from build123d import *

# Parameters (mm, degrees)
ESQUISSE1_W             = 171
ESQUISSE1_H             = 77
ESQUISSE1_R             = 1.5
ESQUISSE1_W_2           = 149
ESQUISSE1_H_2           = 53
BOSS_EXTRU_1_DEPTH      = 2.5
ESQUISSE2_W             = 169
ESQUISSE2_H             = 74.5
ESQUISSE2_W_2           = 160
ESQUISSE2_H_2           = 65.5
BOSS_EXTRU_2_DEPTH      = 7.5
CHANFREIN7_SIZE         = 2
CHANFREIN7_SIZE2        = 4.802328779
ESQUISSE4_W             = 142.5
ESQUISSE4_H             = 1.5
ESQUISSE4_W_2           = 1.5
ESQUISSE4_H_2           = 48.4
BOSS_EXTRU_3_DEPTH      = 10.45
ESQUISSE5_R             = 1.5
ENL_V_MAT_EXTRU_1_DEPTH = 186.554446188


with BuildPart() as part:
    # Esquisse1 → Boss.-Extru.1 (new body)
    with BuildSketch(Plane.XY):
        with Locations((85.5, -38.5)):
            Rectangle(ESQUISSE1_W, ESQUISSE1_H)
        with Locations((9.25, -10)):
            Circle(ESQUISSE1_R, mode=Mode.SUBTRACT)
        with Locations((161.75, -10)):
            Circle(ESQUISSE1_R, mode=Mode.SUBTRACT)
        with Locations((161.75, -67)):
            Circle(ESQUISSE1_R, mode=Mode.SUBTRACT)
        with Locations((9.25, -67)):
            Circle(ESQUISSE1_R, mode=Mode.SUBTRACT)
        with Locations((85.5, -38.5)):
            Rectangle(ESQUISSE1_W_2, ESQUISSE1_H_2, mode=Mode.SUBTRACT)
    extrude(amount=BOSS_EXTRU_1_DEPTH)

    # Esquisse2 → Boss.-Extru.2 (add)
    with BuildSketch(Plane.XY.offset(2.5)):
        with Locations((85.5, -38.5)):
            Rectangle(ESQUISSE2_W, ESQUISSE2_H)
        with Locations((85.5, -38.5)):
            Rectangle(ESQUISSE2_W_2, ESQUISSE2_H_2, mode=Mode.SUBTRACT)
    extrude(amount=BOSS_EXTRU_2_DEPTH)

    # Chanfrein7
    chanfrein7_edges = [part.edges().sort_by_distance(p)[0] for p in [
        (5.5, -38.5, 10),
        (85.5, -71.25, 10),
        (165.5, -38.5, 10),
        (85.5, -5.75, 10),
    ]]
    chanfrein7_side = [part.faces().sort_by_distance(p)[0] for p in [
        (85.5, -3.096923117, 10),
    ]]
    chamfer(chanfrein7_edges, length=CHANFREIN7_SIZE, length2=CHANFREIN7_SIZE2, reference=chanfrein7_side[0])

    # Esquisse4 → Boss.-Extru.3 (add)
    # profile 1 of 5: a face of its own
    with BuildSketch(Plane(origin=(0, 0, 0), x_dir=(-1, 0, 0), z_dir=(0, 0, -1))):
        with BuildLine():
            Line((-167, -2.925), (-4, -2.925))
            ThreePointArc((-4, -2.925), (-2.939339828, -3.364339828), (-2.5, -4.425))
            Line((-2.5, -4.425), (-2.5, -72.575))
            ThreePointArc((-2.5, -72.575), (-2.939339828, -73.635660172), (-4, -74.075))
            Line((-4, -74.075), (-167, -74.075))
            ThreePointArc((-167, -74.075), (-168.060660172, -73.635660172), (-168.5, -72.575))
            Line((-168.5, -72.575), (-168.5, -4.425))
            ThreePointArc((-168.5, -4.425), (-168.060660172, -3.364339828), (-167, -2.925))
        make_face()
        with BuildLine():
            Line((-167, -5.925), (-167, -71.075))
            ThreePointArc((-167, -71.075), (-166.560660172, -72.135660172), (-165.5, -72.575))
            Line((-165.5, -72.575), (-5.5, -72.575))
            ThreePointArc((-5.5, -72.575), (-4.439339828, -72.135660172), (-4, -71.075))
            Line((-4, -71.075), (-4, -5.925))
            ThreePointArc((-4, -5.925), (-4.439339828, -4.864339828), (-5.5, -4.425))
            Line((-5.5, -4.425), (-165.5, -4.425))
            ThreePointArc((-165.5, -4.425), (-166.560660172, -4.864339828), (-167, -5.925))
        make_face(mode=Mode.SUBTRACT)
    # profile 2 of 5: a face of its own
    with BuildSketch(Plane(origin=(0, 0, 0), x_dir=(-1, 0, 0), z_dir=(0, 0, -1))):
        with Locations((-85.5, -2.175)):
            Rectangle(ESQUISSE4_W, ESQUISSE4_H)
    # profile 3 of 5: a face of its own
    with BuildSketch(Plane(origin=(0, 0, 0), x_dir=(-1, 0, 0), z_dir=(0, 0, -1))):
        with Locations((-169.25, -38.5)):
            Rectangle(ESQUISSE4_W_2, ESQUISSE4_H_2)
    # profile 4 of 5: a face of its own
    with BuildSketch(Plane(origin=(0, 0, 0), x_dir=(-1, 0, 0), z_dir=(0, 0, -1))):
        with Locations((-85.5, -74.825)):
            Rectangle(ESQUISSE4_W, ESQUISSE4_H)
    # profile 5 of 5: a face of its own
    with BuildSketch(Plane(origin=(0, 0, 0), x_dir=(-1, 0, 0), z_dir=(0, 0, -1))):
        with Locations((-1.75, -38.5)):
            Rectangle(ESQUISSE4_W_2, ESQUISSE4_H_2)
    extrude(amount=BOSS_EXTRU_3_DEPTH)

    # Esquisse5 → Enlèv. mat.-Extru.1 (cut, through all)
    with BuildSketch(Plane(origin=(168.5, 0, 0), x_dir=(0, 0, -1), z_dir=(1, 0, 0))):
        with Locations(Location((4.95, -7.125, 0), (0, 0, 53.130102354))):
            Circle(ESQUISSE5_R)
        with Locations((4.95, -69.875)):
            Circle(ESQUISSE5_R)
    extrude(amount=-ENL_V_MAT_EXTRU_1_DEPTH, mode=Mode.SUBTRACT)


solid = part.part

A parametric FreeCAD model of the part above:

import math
import FreeCAD as App
import Part
import Sketcher
Q = App.Units.Quantity


def edges_at(feature, points):
    """Names of the edges that pass closest to the given points."""
    edges = feature.Shape.Edges
    near = lambda p: min(range(len(edges)), key=lambda i: edges[i].distToShape(Part.Vertex(*p))[0])
    return sorted({f"Edge{near(p) + 1}" for p in points})

doc = App.newDocument("Part")
params = doc.addObject("Spreadsheet::Sheet", "Params")
for row, (alias, value) in enumerate([
    ("sketch1_diameter", "3 mm"),
    ("sketch1_width", "171 mm"),
    ("sketch1_width2", "149 mm"),
    ("sketch1_height", "77 mm"),
    ("sketch1_height2", "53 mm"),
    ("pad1_length", "2.5 mm"),
    ("sketch2_width", "169 mm"),
    ("sketch2_width2", "160 mm"),
    ("sketch2_height", "74.5 mm"),
    ("sketch2_height2", "65.5 mm"),
    ("pad2_length", "7.5 mm"),
    ("chamfer_size", "2 mm"),
    ("chamfer_size2", "4.802329 mm"),
    ("sketch3_radius", "1.5 mm"),
    ("sketch3_width", "160 mm"),
    ("sketch3_width2", "1.5 mm"),
    ("sketch3_width3", "142.5 mm"),
    ("sketch3_height", "48.4 mm"),
    ("pad3_length", "10.45 mm"),
    ("sketch4_diameter", "3 mm"),
], start=1):
    params.set(f"A{row}", alias)
    params.set(f"B{row}", "=" + value)
    params.setAlias(f"B{row}", alias)

body = doc.addObject("PartDesign::Body", "Body")

sketch1 = body.newObject("Sketcher::SketchObject", "Sketch")
sketch1.AttachmentSupport = (doc.getObject("XY_Plane"), [""])
sketch1.MapMode = "FlatFace"
sketch1.addGeometry([
    Part.LineSegment(App.Vector(0, 0, 0), App.Vector(0, -77, 0)),
    Part.LineSegment(App.Vector(0, -77, 0), App.Vector(171, -77, 0)),
    Part.LineSegment(App.Vector(171, -77, 0), App.Vector(171, 0, 0)),
    Part.LineSegment(App.Vector(171, 0, 0), App.Vector(0, 0, 0)),
    Part.Circle(App.Vector(9.2, -67, 0), App.Vector(0, 0, 1), 1.5),
    Part.Circle(App.Vector(161.8, -67, 0), App.Vector(0, 0, 1), 1.5),
    Part.Circle(App.Vector(9.2, -10, 0), App.Vector(0, 0, 1), 1.5),
    Part.LineSegment(App.Vector(160, -65, 0), App.Vector(11, -65, 0)),
    Part.LineSegment(App.Vector(11, -65, 0), App.Vector(11, -12, 0)),
    Part.LineSegment(App.Vector(11, -12, 0), App.Vector(160, -12, 0)),
    Part.LineSegment(App.Vector(160, -12, 0), App.Vector(160, -65, 0)),
    Part.Circle(App.Vector(161.8, -10, 0), App.Vector(0, 0, 1), 1.5),
], False)
sketch1.addConstraint([
    Sketcher.Constraint("Coincident", 0, 2, 1, 1),
    Sketcher.Constraint("Coincident", 1, 2, 2, 1),
    Sketcher.Constraint("Coincident", 2, 2, 3, 1),
    Sketcher.Constraint("Coincident", 3, 2, 0, 1),
    Sketcher.Constraint("Coincident", 7, 2, 8, 1),
    Sketcher.Constraint("Coincident", 8, 2, 9, 1),
    Sketcher.Constraint("Coincident", 9, 2, 10, 1),
    Sketcher.Constraint("Coincident", 10, 2, 7, 1),
    Sketcher.Constraint("Vertical", 0),
    Sketcher.Constraint("Horizontal", 1),
    Sketcher.Constraint("Vertical", 2),
    Sketcher.Constraint("Horizontal", 3),
    Sketcher.Constraint("Horizontal", 7),
    Sketcher.Constraint("Vertical", 8),
    Sketcher.Constraint("Horizontal", 9),
    Sketcher.Constraint("Vertical", 10),
    Sketcher.Constraint("Coincident", 3, 2, -1, 1),
    Sketcher.Constraint("Equal", 4, 5),
    Sketcher.Constraint("Equal", 5, 6),
    Sketcher.Constraint("Equal", 6, 11),
    Sketcher.Constraint("Horizontal", 4, 3, 5, 3),
    Sketcher.Constraint("Horizontal", 6, 3, 11, 3),
    Sketcher.Constraint("Vertical", 4, 3, 6, 3),
    Sketcher.Constraint("Vertical", 5, 3, 11, 3),
    Sketcher.Constraint("Diameter", 4, Q("3 mm")),
    Sketcher.Constraint("DistanceX", 1, 1, 1, 2, Q("171 mm")),
    Sketcher.Constraint("DistanceX", 7, 2, 7, 1, Q("149 mm")),
    Sketcher.Constraint("DistanceY", 0, 2, 0, 1, Q("77 mm")),
    Sketcher.Constraint("DistanceY", 8, 1, 8, 2, Q("53 mm")),
    Sketcher.Constraint("DistanceY", 4, 3, -1, 1, Q("67 mm")),
    Sketcher.Constraint("DistanceY", 6, 3, -1, 1, Q("10 mm")),
    Sketcher.Constraint("DistanceX", -1, 1, 7, 2, Q("11 mm")),
    Sketcher.Constraint("DistanceY", 7, 2, -1, 1, Q("65 mm")),
    Sketcher.Constraint("DistanceX", 4, 3, 5, 3, Q("152.5 mm")),
    Sketcher.Constraint("DistanceX", -1, 1, 4, 3, Q("9.25 mm")),
])
sketch1.setExpression("Constraints[24]", "Params.sketch1_diameter")
sketch1.setExpression("Constraints[25]", "Params.sketch1_width")
sketch1.setExpression("Constraints[26]", "Params.sketch1_width2")
sketch1.setExpression("Constraints[27]", "Params.sketch1_height")
sketch1.setExpression("Constraints[28]", "Params.sketch1_height2")
pad1 = body.newObject("PartDesign::Pad", "Pad")
pad1.Profile = sketch1
pad1.setExpression("Length", "Params.pad1_length")

sketch2 = body.newObject("Sketcher::SketchObject", "Sketch001")
sketch2.AttachmentSupport = (doc.getObject("XY_Plane"), [""])
sketch2.MapMode = "FlatFace"
sketch2.AttachmentOffset = App.Placement(App.Vector(0, 0, 2.5), App.Rotation())
sketch2.addGeometry([
    Part.LineSegment(App.Vector(1, -1, 0), App.Vector(1, -76, 0)),
    Part.LineSegment(App.Vector(1, -76, 0), App.Vector(170, -76, 0)),
    Part.LineSegment(App.Vector(170, -76, 0), App.Vector(170, -1, 0)),
    Part.LineSegment(App.Vector(170, -1, 0), App.Vector(1, -1, 0)),
    Part.LineSegment(App.Vector(166, -71, 0), App.Vector(6, -71, 0)),
    Part.LineSegment(App.Vector(6, -71, 0), App.Vector(6, -6, 0)),
    Part.LineSegment(App.Vector(6, -6, 0), App.Vector(166, -6, 0)),
    Part.LineSegment(App.Vector(166, -6, 0), App.Vector(166, -71, 0)),
], False)
sketch2.addConstraint([
    Sketcher.Constraint("Coincident", 0, 2, 1, 1),
    Sketcher.Constraint("Coincident", 1, 2, 2, 1),
    Sketcher.Constraint("Coincident", 2, 2, 3, 1),
    Sketcher.Constraint("Coincident", 3, 2, 0, 1),
    Sketcher.Constraint("Coincident", 4, 2, 5, 1),
    Sketcher.Constraint("Coincident", 5, 2, 6, 1),
    Sketcher.Constraint("Coincident", 6, 2, 7, 1),
    Sketcher.Constraint("Coincident", 7, 2, 4, 1),
    Sketcher.Constraint("Vertical", 0),
    Sketcher.Constraint("Horizontal", 1),
    Sketcher.Constraint("Vertical", 2),
    Sketcher.Constraint("Horizontal", 3),
    Sketcher.Constraint("Horizontal", 4),
    Sketcher.Constraint("Vertical", 5),
    Sketcher.Constraint("Horizontal", 6),
    Sketcher.Constraint("Vertical", 7),
    Sketcher.Constraint("DistanceX", 1, 1, 1, 2, Q("169 mm")),
    Sketcher.Constraint("DistanceX", 4, 2, 4, 1, Q("160 mm")),
    Sketcher.Constraint("DistanceY", 0, 2, 0, 1, Q("74.5 mm")),
    Sketcher.Constraint("DistanceY", 5, 1, 5, 2, Q("65.5 mm")),
    Sketcher.Constraint("DistanceX", -1, 1, 0, 2, Q("1 mm")),
    Sketcher.Constraint("DistanceY", 4, 2, 3, 2, Q("70 mm")),
    Sketcher.Constraint("DistanceX", -1, 1, 4, 2, Q("5.5 mm")),
    Sketcher.Constraint("DistanceY", 0, 2, -1, 1, Q("75.75 mm")),
])
sketch2.setExpression("Constraints[16]", "Params.sketch2_width")
sketch2.setExpression("Constraints[17]", "Params.sketch2_width2")
sketch2.setExpression("Constraints[18]", "Params.sketch2_height")
sketch2.setExpression("Constraints[19]", "Params.sketch2_height2")
pad2 = body.newObject("PartDesign::Pad", "Pad001")
pad2.Profile = sketch2
pad2.setExpression("Length", "Params.pad2_length")
doc.recompute()

chamfer = body.newObject("PartDesign::Chamfer", "Chamfer")
chamfer.Base = (pad2, edges_at(pad2, [
    (5.5, -38.5, 10),
    (85.5, -71.25, 10),
    (165.5, -38.5, 10),
    (85.5, -5.75, 10),
]))
chamfer.ChamferType = "Two distances"
chamfer.setExpression("Size", "Params.chamfer_size")
chamfer.setExpression("Size2", "Params.chamfer_size2")

sketch3 = body.newObject("Sketcher::SketchObject", "Sketch002")
sketch3.AttachmentSupport = (doc.getObject("XY_Plane"), [""])
sketch3.MapMode = "FlatFace"
sketch3.addGeometry([
    Part.LineSegment(App.Vector(156.8, -2.9, 0), App.Vector(167, -2.9, 0)),
    Part.ArcOfCircle(Part.Circle(App.Vector(167, -4.4, 0), App.Vector(0, 0, 1), 1.5), math.radians(0), math.radians(90)),
    Part.LineSegment(App.Vector(168.5, -4.4, 0), App.Vector(168.5, -14.3, 0)),
    Part.LineSegment(App.Vector(168.5, -14.3, 0), App.Vector(170, -14.3, 0)),
    Part.LineSegment(App.Vector(170, -14.3, 0), App.Vector(170, -62.7, 0)),
    Part.LineSegment(App.Vector(170, -62.7, 0), App.Vector(168.5, -62.7, 0)),
    Part.LineSegment(App.Vector(168.5, -62.7, 0), App.Vector(168.5, -72.6, 0)),
    Part.ArcOfCircle(Part.Circle(App.Vector(167, -72.6, 0), App.Vector(0, 0, 1), 1.5), math.radians(-90), math.radians(0)),
    Part.LineSegment(App.Vector(167, -74.1, 0), App.Vector(156.8, -74.1, 0)),
    Part.LineSegment(App.Vector(156.8, -74.1, 0), App.Vector(156.8, -75.6, 0)),
    Part.LineSegment(App.Vector(156.8, -75.6, 0), App.Vector(14.2, -75.6, 0)),
    Part.LineSegment(App.Vector(14.2, -75.6, 0), App.Vector(14.2, -74.1, 0)),
    Part.LineSegment(App.Vector(14.2, -74.1, 0), App.Vector(4, -74.1, 0)),
    Part.ArcOfCircle(Part.Circle(App.Vector(4, -72.6, 0), App.Vector(0, 0, 1), 1.5), math.radians(180), math.radians(270)),
    Part.LineSegment(App.Vector(2.5, -72.6, 0), App.Vector(2.5, -62.7, 0)),
    Part.LineSegment(App.Vector(2.5, -62.7, 0), App.Vector(1, -62.7, 0)),
    Part.LineSegment(App.Vector(1, -62.7, 0), App.Vector(1, -14.3, 0)),
    Part.LineSegment(App.Vector(1, -14.3, 0), App.Vector(2.5, -14.3, 0)),
    Part.LineSegment(App.Vector(2.5, -14.3, 0), App.Vector(2.5, -4.4, 0)),
    Part.ArcOfCircle(Part.Circle(App.Vector(4, -4.4, 0), App.Vector(0, 0, 1), 1.5), math.radians(90), math.radians(180)),
    Part.LineSegment(App.Vector(4, -2.9, 0), App.Vector(14.2, -2.9, 0)),
    Part.LineSegment(App.Vector(14.2, -2.9, 0), App.Vector(14.2, -1.4, 0)),
    Part.LineSegment(App.Vector(14.2, -1.4, 0), App.Vector(156.8, -1.4, 0)),
    Part.LineSegment(App.Vector(156.8, -1.4, 0), App.Vector(156.8, -2.9, 0)),
    Part.ArcOfCircle(Part.Circle(App.Vector(165.5, -5.9, 0), App.Vector(0, 0, 1), 1.5), math.radians(0), math.radians(90)),
    Part.LineSegment(App.Vector(165.5, -4.4, 0), App.Vector(5.5, -4.4, 0)),
    Part.ArcOfCircle(Part.Circle(App.Vector(5.5, -5.9, 0), App.Vector(0, 0, 1), 1.5), math.radians(90), math.radians(180)),
    Part.LineSegment(App.Vector(4, -5.9, 0), App.Vector(4, -71.1, 0)),
    Part.ArcOfCircle(Part.Circle(App.Vector(5.5, -71.1, 0), App.Vector(0, 0, 1), 1.5), math.radians(180), math.radians(270)),
    Part.LineSegment(App.Vector(5.5, -72.6, 0), App.Vector(165.5, -72.6, 0)),
    Part.ArcOfCircle(Part.Circle(App.Vector(165.5, -71.1, 0), App.Vector(0, 0, 1), 1.5), math.radians(-90), math.radians(0)),
    Part.LineSegment(App.Vector(167, -71.1, 0), App.Vector(167, -5.9, 0)),
], False)
sketch3.addConstraint([
    Sketcher.Constraint("Tangent", 0, 2, 1, 2),
    Sketcher.Constraint("Tangent", 1, 1, 2, 1),
    Sketcher.Constraint("Coincident", 2, 2, 3, 1),
    Sketcher.Constraint("Coincident", 3, 2, 4, 1),
    Sketcher.Constraint("Coincident", 4, 2, 5, 1),
    Sketcher.Constraint("Coincident", 5, 2, 6, 1),
    Sketcher.Constraint("Tangent", 6, 2, 7, 2),
    Sketcher.Constraint("Tangent", 7, 1, 8, 1),
    Sketcher.Constraint("Coincident", 8, 2, 9, 1),
    Sketcher.Constraint("Coincident", 9, 2, 10, 1),
    Sketcher.Constraint("Coincident", 10, 2, 11, 1),
    Sketcher.Constraint("Coincident", 11, 2, 12, 1),
    Sketcher.Constraint("Tangent", 12, 2, 13, 2),
    Sketcher.Constraint("Tangent", 13, 1, 14, 1),
    Sketcher.Constraint("Coincident", 14, 2, 15, 1),
    Sketcher.Constraint("Coincident", 15, 2, 16, 1),
    Sketcher.Constraint("Coincident", 16, 2, 17, 1),
    Sketcher.Constraint("Coincident", 17, 2, 18, 1),
    Sketcher.Constraint("Tangent", 18, 2, 19, 2),
    Sketcher.Constraint("Tangent", 19, 1, 20, 1),
    Sketcher.Constraint("Coincident", 20, 2, 21, 1),
    Sketcher.Constraint("Coincident", 21, 2, 22, 1),
    Sketcher.Constraint("Coincident", 22, 2, 23, 1),
    Sketcher.Constraint("Coincident", 23, 2, 0, 1),
    Sketcher.Constraint("Tangent", 24, 2, 25, 1),
    Sketcher.Constraint("Tangent", 25, 2, 26, 1),
    Sketcher.Constraint("Tangent", 26, 2, 27, 1),
    Sketcher.Constraint("Tangent", 27, 2, 28, 1),
    Sketcher.Constraint("Tangent", 28, 2, 29, 1),
    Sketcher.Constraint("Tangent", 29, 2, 30, 1),
    Sketcher.Constraint("Tangent", 30, 2, 31, 1),
    Sketcher.Constraint("Tangent", 31, 2, 24, 1),
    Sketcher.Constraint("Horizontal", 0),
    Sketcher.Constraint("Vertical", 2),
    Sketcher.Constraint("Horizontal", 3),
    Sketcher.Constraint("Vertical", 4),
    Sketcher.Constraint("Horizontal", 5),
    Sketcher.Constraint("Vertical", 6),
    Sketcher.Constraint("Horizontal", 8),
    Sketcher.Constraint("Vertical", 9),
    Sketcher.Constraint("Horizontal", 10),
    Sketcher.Constraint("Vertical", 11),
    Sketcher.Constraint("Horizontal", 12),
    Sketcher.Constraint("Vertical", 14),
    Sketcher.Constraint("Horizontal", 15),
    Sketcher.Constraint("Vertical", 16),
    Sketcher.Constraint("Horizontal", 17),
    Sketcher.Constraint("Vertical", 18),
    Sketcher.Constraint("Horizontal", 20),
    Sketcher.Constraint("Vertical", 21),
    Sketcher.Constraint("Horizontal", 22),
    Sketcher.Constraint("Vertical", 23),
    Sketcher.Constraint("Horizontal", 25),
    Sketcher.Constraint("Vertical", 27),
    Sketcher.Constraint("Horizontal", 29),
    Sketcher.Constraint("Vertical", 31),
    Sketcher.Constraint("Equal", 1, 7),
    Sketcher.Constraint("Equal", 7, 13),
    Sketcher.Constraint("Equal", 13, 19),
    Sketcher.Constraint("Equal", 19, 24),
    Sketcher.Constraint("Equal", 24, 26),
    Sketcher.Constraint("Equal", 26, 28),
    Sketcher.Constraint("Equal", 28, 30),
    Sketcher.Constraint("Horizontal", 7, 3, 13, 3),
    Sketcher.Constraint("Horizontal", 1, 3, 19, 3),
    Sketcher.Constraint("Horizontal", 5, 2, 14, 2),
    Sketcher.Constraint("Horizontal", 3, 2, 16, 2),
    Sketcher.Constraint("Horizontal", 18, 2, 24, 2),
    Sketcher.Constraint("Horizontal", 13, 1, 28, 2),
    Sketcher.Constraint("Vertical", 1, 3, 7, 3),
    Sketcher.Constraint("Vertical", 13, 3, 19, 3),
    Sketcher.Constraint("Vertical", 11, 2, 20, 2),
    Sketcher.Constraint("Vertical", 9, 2, 22, 2),
    Sketcher.Constraint("Vertical", 19, 1, 26, 2),
    Sketcher.Constraint("Vertical", 7, 1, 30, 2),
    Sketcher.Constraint("Equal", 8, 12),
    Sketcher.Constraint("Equal", 5, 15),
    Sketcher.Constraint("Equal", 2, 6),
    Sketcher.Constraint("Equal", 17, 9),
    Sketcher.Constraint("Equal", 11, 21),
    Sketcher.Constraint("Radius", 1, Q("1.5 mm")),
    Sketcher.Constraint("DistanceX", 25, 2, 25, 1, Q("160 mm")),
    Sketcher.Constraint("DistanceX", 3, 1, 3, 2, Q("1.5 mm")),
    Sketcher.Constraint("DistanceX", 10, 2, 10, 1, Q("142.5 mm")),
    Sketcher.Constraint("DistanceY", 4, 2, 4, 1, Q("48.4 mm")),
    Sketcher.Constraint("DistanceX", -1, 1, 1, 3, Q("167 mm")),
    Sketcher.Constraint("DistanceY", 27, 2, 27, 1, Q("65.15 mm")),
    Sketcher.Constraint("DistanceY", 2, 2, -1, 1, Q("14.3 mm")),
])
sketch3.setExpression("Constraints[80]", "Params.sketch3_radius")
sketch3.setExpression("Constraints[81]", "Params.sketch3_width")
sketch3.setExpression("Constraints[82]", "Params.sketch3_width2")
sketch3.setExpression("Constraints[83]", "Params.sketch3_width3")
sketch3.setExpression("Constraints[84]", "Params.sketch3_height")
pad3 = body.newObject("PartDesign::Pad", "Pad002")
pad3.Profile = sketch3
pad3.setExpression("Length", "Params.pad3_length")
pad3.Reversed = True

sketch4 = body.newObject("Sketcher::SketchObject", "Sketch003")
sketch4.AttachmentSupport = (doc.getObject("YZ_Plane"), [""])
sketch4.MapMode = "FlatFace"
sketch4.AttachmentOffset = App.Placement(App.Vector(0, 0, 168.5), App.Rotation())
sketch4.addGeometry([
    Part.Circle(App.Vector(-7.1, -5, 0), App.Vector(0, 0, 1), 1.5),
    Part.Circle(App.Vector(-69.9, -5, 0), App.Vector(0, 0, 1), 1.5),
], False)
sketch4.addConstraint([
    Sketcher.Constraint("Equal", 0, 1),
    Sketcher.Constraint("Horizontal", 0, 3, 1, 3),
    Sketcher.Constraint("Diameter", 0, Q("3 mm")),
    Sketcher.Constraint("DistanceY", 0, 3, -1, 1, Q("4.95 mm")),
    Sketcher.Constraint("DistanceX", 1, 3, 0, 3, Q("62.75 mm")),
    Sketcher.Constraint("DistanceX", 0, 3, -1, 1, Q("7.125 mm")),
])
sketch4.setExpression("Constraints[2]", "Params.sketch4_diameter")
pocket1 = body.newObject("PartDesign::Pocket", "Pocket")
pocket1.Profile = sketch4
pocket1.Type = "ThroughAll"

doc.recompute()
